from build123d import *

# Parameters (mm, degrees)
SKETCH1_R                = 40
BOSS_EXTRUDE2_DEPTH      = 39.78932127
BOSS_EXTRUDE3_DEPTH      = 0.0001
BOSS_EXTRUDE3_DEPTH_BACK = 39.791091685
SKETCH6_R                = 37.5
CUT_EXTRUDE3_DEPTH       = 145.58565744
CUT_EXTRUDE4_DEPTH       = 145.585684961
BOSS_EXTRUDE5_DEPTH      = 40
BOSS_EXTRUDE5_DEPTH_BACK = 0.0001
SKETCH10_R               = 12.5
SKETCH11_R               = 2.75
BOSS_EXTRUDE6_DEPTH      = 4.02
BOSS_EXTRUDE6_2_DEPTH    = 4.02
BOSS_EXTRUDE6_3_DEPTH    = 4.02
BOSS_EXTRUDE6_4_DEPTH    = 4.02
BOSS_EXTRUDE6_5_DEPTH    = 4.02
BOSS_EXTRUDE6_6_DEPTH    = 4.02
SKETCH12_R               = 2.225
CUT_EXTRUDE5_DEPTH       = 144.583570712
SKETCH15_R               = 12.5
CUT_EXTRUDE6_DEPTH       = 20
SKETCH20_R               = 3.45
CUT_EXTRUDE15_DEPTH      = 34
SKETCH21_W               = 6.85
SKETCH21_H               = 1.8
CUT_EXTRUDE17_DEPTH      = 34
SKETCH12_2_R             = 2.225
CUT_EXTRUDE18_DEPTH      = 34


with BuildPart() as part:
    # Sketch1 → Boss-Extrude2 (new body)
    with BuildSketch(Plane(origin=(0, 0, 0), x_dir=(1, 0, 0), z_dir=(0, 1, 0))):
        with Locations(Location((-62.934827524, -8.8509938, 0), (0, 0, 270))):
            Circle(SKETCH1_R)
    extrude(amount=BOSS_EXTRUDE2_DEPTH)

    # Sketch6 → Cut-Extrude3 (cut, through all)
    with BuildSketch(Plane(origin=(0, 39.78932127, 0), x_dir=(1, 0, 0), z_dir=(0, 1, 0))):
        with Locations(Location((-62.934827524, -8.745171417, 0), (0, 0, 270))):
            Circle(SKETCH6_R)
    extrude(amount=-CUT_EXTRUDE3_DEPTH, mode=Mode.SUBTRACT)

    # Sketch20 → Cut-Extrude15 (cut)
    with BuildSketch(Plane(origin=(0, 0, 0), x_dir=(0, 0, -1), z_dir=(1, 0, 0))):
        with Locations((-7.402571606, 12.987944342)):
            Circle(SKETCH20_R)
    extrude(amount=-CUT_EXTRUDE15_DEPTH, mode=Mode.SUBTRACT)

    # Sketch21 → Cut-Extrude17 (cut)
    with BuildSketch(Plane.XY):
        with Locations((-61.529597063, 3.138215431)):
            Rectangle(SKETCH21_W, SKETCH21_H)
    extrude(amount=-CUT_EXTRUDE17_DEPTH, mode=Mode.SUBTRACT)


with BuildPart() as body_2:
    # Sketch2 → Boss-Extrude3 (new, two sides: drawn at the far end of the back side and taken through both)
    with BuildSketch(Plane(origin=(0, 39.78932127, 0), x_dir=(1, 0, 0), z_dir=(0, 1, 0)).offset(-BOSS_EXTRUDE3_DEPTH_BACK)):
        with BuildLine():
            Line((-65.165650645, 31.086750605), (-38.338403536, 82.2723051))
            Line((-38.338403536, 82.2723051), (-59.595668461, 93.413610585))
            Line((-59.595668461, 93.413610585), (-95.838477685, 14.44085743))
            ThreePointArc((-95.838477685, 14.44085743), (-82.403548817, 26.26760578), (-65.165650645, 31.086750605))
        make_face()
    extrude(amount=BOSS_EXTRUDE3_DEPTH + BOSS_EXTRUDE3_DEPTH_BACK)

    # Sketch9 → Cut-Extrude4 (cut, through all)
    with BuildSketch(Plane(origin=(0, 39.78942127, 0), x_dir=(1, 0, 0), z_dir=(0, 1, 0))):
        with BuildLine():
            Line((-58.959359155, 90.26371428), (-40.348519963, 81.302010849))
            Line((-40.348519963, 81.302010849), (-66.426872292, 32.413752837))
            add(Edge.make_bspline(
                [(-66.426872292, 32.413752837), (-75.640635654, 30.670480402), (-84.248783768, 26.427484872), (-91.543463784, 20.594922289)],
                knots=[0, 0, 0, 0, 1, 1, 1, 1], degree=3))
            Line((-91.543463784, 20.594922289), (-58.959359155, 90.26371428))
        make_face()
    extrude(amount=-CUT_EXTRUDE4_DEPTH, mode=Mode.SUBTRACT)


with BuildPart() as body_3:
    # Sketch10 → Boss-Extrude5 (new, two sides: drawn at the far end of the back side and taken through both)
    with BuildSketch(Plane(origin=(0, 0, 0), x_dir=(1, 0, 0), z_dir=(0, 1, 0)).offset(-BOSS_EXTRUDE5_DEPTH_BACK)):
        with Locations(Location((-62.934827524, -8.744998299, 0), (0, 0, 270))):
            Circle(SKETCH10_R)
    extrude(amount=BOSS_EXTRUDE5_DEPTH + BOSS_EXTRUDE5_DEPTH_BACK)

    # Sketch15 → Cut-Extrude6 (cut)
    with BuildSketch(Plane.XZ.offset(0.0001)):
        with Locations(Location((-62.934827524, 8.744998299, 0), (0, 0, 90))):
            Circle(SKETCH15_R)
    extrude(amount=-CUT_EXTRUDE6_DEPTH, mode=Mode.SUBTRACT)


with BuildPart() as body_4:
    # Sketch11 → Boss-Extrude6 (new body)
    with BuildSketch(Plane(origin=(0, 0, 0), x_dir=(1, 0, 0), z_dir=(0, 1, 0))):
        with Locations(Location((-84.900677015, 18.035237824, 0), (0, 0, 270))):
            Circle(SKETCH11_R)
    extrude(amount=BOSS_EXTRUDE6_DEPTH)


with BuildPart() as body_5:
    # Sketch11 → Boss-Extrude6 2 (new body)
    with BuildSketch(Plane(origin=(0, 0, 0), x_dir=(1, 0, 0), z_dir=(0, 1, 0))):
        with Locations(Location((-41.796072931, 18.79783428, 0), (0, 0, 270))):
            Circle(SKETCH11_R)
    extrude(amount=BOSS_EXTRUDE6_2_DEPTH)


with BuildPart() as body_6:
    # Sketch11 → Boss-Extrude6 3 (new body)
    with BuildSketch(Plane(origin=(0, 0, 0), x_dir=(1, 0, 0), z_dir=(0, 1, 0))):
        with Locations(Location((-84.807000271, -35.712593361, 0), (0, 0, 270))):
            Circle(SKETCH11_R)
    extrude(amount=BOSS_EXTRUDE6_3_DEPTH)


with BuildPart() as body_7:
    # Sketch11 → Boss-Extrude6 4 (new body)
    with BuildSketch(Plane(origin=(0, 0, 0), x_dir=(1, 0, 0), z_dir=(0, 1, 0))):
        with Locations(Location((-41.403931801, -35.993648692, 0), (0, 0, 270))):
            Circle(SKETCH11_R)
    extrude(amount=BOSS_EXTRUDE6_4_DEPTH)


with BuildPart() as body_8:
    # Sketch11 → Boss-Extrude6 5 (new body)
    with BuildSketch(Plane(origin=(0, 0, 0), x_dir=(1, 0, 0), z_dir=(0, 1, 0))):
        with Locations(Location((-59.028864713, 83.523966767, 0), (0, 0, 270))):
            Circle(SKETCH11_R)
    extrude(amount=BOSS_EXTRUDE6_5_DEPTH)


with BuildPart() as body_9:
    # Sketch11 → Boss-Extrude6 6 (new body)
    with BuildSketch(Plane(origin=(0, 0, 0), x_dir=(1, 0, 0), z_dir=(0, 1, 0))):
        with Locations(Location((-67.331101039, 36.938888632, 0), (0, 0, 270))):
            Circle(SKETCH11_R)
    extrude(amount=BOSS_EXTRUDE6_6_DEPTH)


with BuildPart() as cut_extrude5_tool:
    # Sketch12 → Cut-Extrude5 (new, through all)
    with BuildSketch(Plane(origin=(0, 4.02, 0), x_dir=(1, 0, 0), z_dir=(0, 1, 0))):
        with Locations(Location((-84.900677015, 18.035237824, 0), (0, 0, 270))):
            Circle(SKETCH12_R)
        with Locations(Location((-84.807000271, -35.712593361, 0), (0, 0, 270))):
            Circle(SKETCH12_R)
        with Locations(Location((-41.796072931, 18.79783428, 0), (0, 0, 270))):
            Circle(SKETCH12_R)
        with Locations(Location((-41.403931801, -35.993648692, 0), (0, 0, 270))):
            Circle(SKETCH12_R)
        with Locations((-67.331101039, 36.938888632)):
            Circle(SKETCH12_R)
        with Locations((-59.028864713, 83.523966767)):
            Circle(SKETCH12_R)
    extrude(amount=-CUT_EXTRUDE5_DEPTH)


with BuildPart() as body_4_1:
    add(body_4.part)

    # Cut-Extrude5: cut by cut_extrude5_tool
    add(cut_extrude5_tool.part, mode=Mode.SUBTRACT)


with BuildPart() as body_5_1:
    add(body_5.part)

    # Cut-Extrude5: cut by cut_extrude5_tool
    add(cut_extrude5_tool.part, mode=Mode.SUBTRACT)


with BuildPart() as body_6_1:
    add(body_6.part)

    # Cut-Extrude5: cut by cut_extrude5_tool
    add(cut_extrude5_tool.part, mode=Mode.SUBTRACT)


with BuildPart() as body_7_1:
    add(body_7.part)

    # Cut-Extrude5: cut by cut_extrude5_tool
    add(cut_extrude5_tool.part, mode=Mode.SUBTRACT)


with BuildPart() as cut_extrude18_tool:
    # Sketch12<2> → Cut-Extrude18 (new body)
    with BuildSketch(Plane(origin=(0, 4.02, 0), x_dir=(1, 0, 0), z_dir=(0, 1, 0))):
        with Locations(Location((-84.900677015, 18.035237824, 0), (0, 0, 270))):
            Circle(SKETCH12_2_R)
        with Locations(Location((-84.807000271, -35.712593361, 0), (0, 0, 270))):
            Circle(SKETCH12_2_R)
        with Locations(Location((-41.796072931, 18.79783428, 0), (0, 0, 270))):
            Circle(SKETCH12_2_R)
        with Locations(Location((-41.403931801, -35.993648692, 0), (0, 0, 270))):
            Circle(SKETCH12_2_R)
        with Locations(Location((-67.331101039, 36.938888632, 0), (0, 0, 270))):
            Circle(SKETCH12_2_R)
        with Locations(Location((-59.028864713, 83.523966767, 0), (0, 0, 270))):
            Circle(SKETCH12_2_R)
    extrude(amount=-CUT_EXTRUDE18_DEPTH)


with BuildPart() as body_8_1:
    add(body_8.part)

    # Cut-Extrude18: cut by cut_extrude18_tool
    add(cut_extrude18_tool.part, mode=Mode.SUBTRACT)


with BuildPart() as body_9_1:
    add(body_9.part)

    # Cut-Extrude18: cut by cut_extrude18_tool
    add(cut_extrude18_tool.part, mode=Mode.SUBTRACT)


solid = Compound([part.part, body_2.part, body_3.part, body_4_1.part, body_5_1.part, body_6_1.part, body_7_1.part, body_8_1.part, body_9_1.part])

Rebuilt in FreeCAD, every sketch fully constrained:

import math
import FreeCAD as App
import Part
import Sketcher
from FreeCAD import Vector
Q = App.Units.Quantity


def add_polygon(sketch, points):
    """Adds a closed chain of lines whose ends are joined by coincident constraints."""
    first, n = sketch.GeometryCount, len(points)
    for a, b in zip(points, points[1:] + points[:1]):
        sketch.addGeometry(Part.LineSegment(App.Vector(*a, 0), App.Vector(*b, 0)), False)
    for i in range(n):
        sketch.addConstraint(Sketcher.Constraint("Coincident", first + i, 2, first + (i + 1) % n, 1))

doc = App.newDocument("Part")
body = doc.addObject("PartDesign::Body", "Body")

sketch1 = body.newObject("Sketcher::SketchObject", "Sketch")
sketch1.AttachmentSupport = (doc.getObject("XZ_Plane"), [""])
sketch1.MapMode = "FlatFace"
sketch1.addGeometry(Part.Circle(Vector(-63, 9, 0), Vector(0, 0, 1), 40), False)
sketch1.addConstraint([
    Sketcher.Constraint("Diameter", 0, Q("80 mm")),
    Sketcher.Constraint("DistanceX", 0, 3, -1, 1, Q("62.934828 mm")),
    Sketcher.Constraint("DistanceY", -1, 1, 0, 3, Q("8.850994 mm")),
])
pad1 = body.newObject("PartDesign::Pad", "Pad")
pad1.Profile = sketch1
pad1.Length = 39.789321
pad1.Reversed = True

sketch2 = body.newObject("Sketcher::SketchObject", "Sketch001")
sketch2.AttachmentSupport = (doc.getObject("XZ_Plane"), [""])
sketch2.MapMode = "FlatFace"
sketch2.AttachmentOffset = App.Placement(Vector(0, 0, -39.789321), App.Rotation())
sketch2.addGeometry(Part.Circle(Vector(-63, 9, 0), Vector(0, 0, 1), 38), False)
sketch2.addConstraint([
    Sketcher.Constraint("Diameter", 0, Q("75 mm")),
    Sketcher.Constraint("DistanceY", -1, 1, 0, 3, Q("8.745171 mm")),
    Sketcher.Constraint("DistanceX", 0, 3, -1, 1, Q("62.934828 mm")),
])
pocket1 = body.newObject("PartDesign::Pocket", "Pocket")
pocket1.Profile = sketch2
pocket1.Type = "ThroughAll"
pocket1.Reversed = True

sketch3 = body.newObject("Sketcher::SketchObject", "Sketch002")
sketch3.AttachmentSupport = (doc.getObject("YZ_Plane"), [""])
sketch3.MapMode = "FlatFace"
sketch3.addGeometry(Part.Circle(Vector(13, 7.4, 0), Vector(0, 0, 1), 3.5), False)
sketch3.addConstraint([
    Sketcher.Constraint("Diameter", 0, Q("6.9 mm")),
    Sketcher.Constraint("DistanceY", -1, 1, 0, 3, Q("7.402572 mm")),
    Sketcher.Constraint("DistanceX", -1, 1, 0, 3, Q("12.987944 mm")),
])
pocket2 = body.newObject("PartDesign::Pocket", "Pocket001")
pocket2.Profile = sketch3
pocket2.Length = 34

sketch4 = body.newObject("Sketcher::SketchObject", "Sketch003")
sketch4.AttachmentSupport = (doc.getObject("XY_Plane"), [""])
sketch4.MapMode = "FlatFace"
add_polygon(sketch4, [(-65, 4), (-65, 2.2), (-58.1, 2.2), (-58.1, 4)])
sketch4.addConstraint([
    Sketcher.Constraint("Vertical", 0),
    Sketcher.Constraint("Horizontal", 1),
    Sketcher.Constraint("Vertical", 2),
    Sketcher.Constraint("Horizontal", 3),
    Sketcher.Constraint("DistanceY", 0, 2, 0, 1, Q("1.8 mm")),
    Sketcher.Constraint("DistanceX", 1, 1, 1, 2, Q("6.85 mm")),
    Sketcher.Constraint("DistanceX", 0, 2, -1, 1, Q("64.954597 mm")),
    Sketcher.Constraint("DistanceY", -1, 1, 0, 2, Q("2.238215 mm")),
])
pocket3 = body.newObject("PartDesign::Pocket", "Pocket002")
pocket3.Profile = sketch4
pocket3.Length = 34
body2 = doc.addObject("PartDesign::Body", "Body001")

sketch5 = body2.newObject("Sketcher::SketchObject", "Sketch004")
sketch5.AttachmentSupport = (doc.getObject("XZ_Plane001"), [""])
sketch5.MapMode = "FlatFace"
sketch5.AttachmentOffset = App.Placement(Vector(0, 0, -39.789321), App.Rotation())
sketch5.addGeometry([
    Part.LineSegment(Vector(-65, -31, 0), Vector(-38, -82, 0)),
    Part.LineSegment(Vector(-38, -82, 0), Vector(-60, -93, 0)),
    Part.LineSegment(Vector(-60, -93, 0), Vector(-96, -14, 0)),
    Part.ArcOfCircle(Part.Circle(Vector(-63, 9, 0), Vector(0, 0, 1), 40), math.radians(-144), math.radians(-93)),
], False)
sketch5.addConstraint([
    Sketcher.Constraint("Coincident", 0, 2, 1, 1),
    Sketcher.Constraint("Coincident", 1, 2, 2, 1),
    Sketcher.Constraint("Coincident", 2, 2, 3, 1),
    Sketcher.Constraint("Coincident", 3, 2, 0, 1),
    Sketcher.Constraint("Perpendicular", 0, 1),
    Sketcher.Constraint("Distance", 1, Q("24 mm")),
    Sketcher.Constraint("Radius", 3, Q("40.181663 mm")),
    Sketcher.Constraint("Distance", 2, Q("86.8921 mm")),
    Sketcher.Constraint("Distance", 0, Q("57.78981 mm")),
    Sketcher.Constraint("DistanceX", 1, 2, -1, 1, Q("59.595668 mm")),
    Sketcher.Constraint("DistanceY", 1, 2, -1, 1, Q("93.413611 mm")),
    Sketcher.Constraint("DistanceX", 3, 2, -1, 1, Q("65.165651 mm")),
    Sketcher.Constraint("DistanceX", 3, 3, 0, 2, Q("24.89931 mm")),
])
pad2 = body2.newObject("PartDesign::Pad", "Pad001")
pad2.Profile = sketch5
pad2.Type = "TwoLengths"
pad2.Length = 0.0001
pad2.Length2 = 39.791092
pad2.Reversed = True

sketch6 = body2.newObject("Sketcher::SketchObject", "Sketch005")
sketch6.AttachmentSupport = (doc.getObject("XZ_Plane001"), [""])
sketch6.MapMode = "FlatFace"
sketch6.AttachmentOffset = App.Placement(Vector(0, 0, -39.789421), App.Rotation())
sketch6.addGeometry([
    Part.LineSegment(Vector(-40.34852, -81.302011, 0), Vector(-58.959359, -90.263714, 0)),
    Part.LineSegment(Vector(-58.959359, -90.263714, 0), Vector(-91.543464, -20.594922, 0)),
    Part.BSplineCurve([Vector(-66.426872, -32.413753, 0), Vector(-75.640636, -30.67048, 0), Vector(-84.248784, -26.427485, 0), Vector(-91.543464, -20.594922, 0)], [4, 4], [0, 1], False, 3, [1, 1, 1, 1], False),
    Part.LineSegment(Vector(-66.426872, -32.413753, 0), Vector(-40.34852, -81.302011, 0)),
], False)
sketch6.addConstraint([
    Sketcher.Constraint("Block", 2),
    Sketcher.Constraint("Coincident", 0, 2, 1, 1),
    Sketcher.Constraint("Coincident", 1, 2, 2, 2),
    Sketcher.Constraint("Coincident", 2, 1, 3, 1),
    Sketcher.Constraint("Coincident", 3, 2, 0, 1),
    Sketcher.Constraint("DistanceX", 0, 2, -1, 1, Q("58.959359 mm")),
    Sketcher.Constraint("DistanceX", 3, 2, -1, 1, Q("40.34852 mm")),
    Sketcher.Constraint("DistanceY", 3, 2, -1, 1, Q("81.302011 mm")),
    Sketcher.Constraint("DistanceY", 0, 2, 1, 2, Q("69.668792 mm")),
])
pocket4 = body2.newObject("PartDesign::Pocket", "Pocket003")
pocket4.Profile = sketch6
pocket4.Type = "ThroughAll"
pocket4.Reversed = True
body3 = doc.addObject("PartDesign::Body", "Body002")

sketch7 = body3.newObject("Sketcher::SketchObject", "Sketch006")
sketch7.AttachmentSupport = (doc.getObject("XZ_Plane002"), [""])
sketch7.MapMode = "FlatFace"
sketch7.addGeometry(Part.Circle(Vector(-63, 9, 0), Vector(0, 0, 1), 12), False)
sketch7.addConstraint([
    Sketcher.Constraint("Diameter", 0, Q("25 mm")),
    Sketcher.Constraint("DistanceY", -1, 1, 0, 3, Q("8.744998 mm")),
    Sketcher.Constraint("DistanceX", 0, 3, -1, 1, Q("62.934828 mm")),
])
pad3 = body3.newObject("PartDesign::Pad", "Pad002")
pad3.Profile = sketch7
pad3.Type = "TwoLengths"
pad3.Length = 40
pad3.Length2 = 0.0001
pad3.Reversed = True

sketch8 = body3.newObject("Sketcher::SketchObject", "Sketch007")
sketch8.AttachmentSupport = (doc.getObject("XZ_Plane002"), [""])
sketch8.MapMode = "FlatFace"
sketch8.AttachmentOffset = App.Placement(Vector(0, 0, 0.0001), App.Rotation())
sketch8.addGeometry(Part.Circle(Vector(-63, 9, 0), Vector(0, 0, 1), 12), False)
sketch8.addConstraint([
    Sketcher.Constraint("Diameter", 0, Q("25 mm")),
    Sketcher.Constraint("DistanceY", -1, 1, 0, 3, Q("8.744998 mm")),
    Sketcher.Constraint("DistanceX", 0, 3, -1, 1, Q("62.934828 mm")),
])
pocket5 = body3.newObject("PartDesign::Pocket", "Pocket004")
pocket5.Profile = sketch8
pocket5.Length = 20
body4 = doc.addObject("PartDesign::Body", "Body003")

sketch9 = body4.newObject("Sketcher::SketchObject", "Sketch008")
sketch9.AttachmentSupport = (doc.getObject("XZ_Plane003"), [""])
sketch9.MapMode = "FlatFace"
sketch9.addGeometry(Part.Circle(Vector(-84.9, -18, 0), Vector(0, 0, 1), 2.8), False)
sketch9.addConstraint([
    Sketcher.Constraint("Diameter", 0, Q("5.5 mm")),
    Sketcher.Constraint("DistanceX", 0, 3, -1, 1, Q("84.900677 mm")),
    Sketcher.Constraint("DistanceY", 0, 3, -1, 1, Q("18.035238 mm")),
])
pad4 = body4.newObject("PartDesign::Pad", "Pad003")
pad4.Profile = sketch9
pad4.Length = 4.02
pad4.Reversed = True
body5 = doc.addObject("PartDesign::Body", "Body004")

sketch10 = body5.newObject("Sketcher::SketchObject", "Sketch009")
sketch10.AttachmentSupport = (doc.getObject("XZ_Plane004"), [""])
sketch10.MapMode = "FlatFace"
sketch10.addGeometry(Part.Circle(Vector(-41.8, -18.8, 0), Vector(0, 0, 1), 2.8), False)
sketch10.addConstraint([
    Sketcher.Constraint("Diameter", 0, Q("5.5 mm")),
    Sketcher.Constraint("DistanceX", 0, 3, -1, 1, Q("41.796073 mm")),
    Sketcher.Constraint("DistanceY", 0, 3, -1, 1, Q("18.797834 mm")),
])
pad5 = body5.newObject("PartDesign::Pad", "Pad004")
pad5.Profile = sketch10
pad5.Length = 4.02
pad5.Reversed = True
body6 = doc.addObject("PartDesign::Body", "Body005")

sketch11 = body6.newObject("Sketcher::SketchObject", "Sketch010")
sketch11.AttachmentSupport = (doc.getObject("XZ_Plane005"), [""])
sketch11.MapMode = "FlatFace"
sketch11.addGeometry(Part.Circle(Vector(-84.8, 35.7, 0), Vector(0, 0, 1), 2.8), False)
sketch11.addConstraint([
    Sketcher.Constraint("Diameter", 0, Q("5.5 mm")),
    Sketcher.Constraint("DistanceX", 0, 3, -1, 1, Q("84.807 mm")),
    Sketcher.Constraint("DistanceY", -1, 1, 0, 3, Q("35.712593 mm")),
])
pad6 = body6.newObject("PartDesign::Pad", "Pad005")
pad6.Profile = sketch11
pad6.Length = 4.02
pad6.Reversed = True
body7 = doc.addObject("PartDesign::Body", "Body006")

sketch12 = body7.newObject("Sketcher::SketchObject", "Sketch011")
sketch12.AttachmentSupport = (doc.getObject("XZ_Plane006"), [""])
sketch12.MapMode = "FlatFace"
sketch12.addGeometry(Part.Circle(Vector(-41.4, 36, 0), Vector(0, 0, 1), 2.8), False)
sketch12.addConstraint([
    Sketcher.Constraint("Diameter", 0, Q("5.5 mm")),
    Sketcher.Constraint("DistanceX", 0, 3, -1, 1, Q("41.403932 mm")),
    Sketcher.Constraint("DistanceY", -1, 1, 0, 3, Q("35.993649 mm")),
])
pad7 = body7.newObject("PartDesign::Pad", "Pad006")
pad7.Profile = sketch12
pad7.Length = 4.02
pad7.Reversed = True
body8 = doc.addObject("PartDesign::Body", "Body007")

sketch13 = body8.newObject("Sketcher::SketchObject", "Sketch012")
sketch13.AttachmentSupport = (doc.getObject("XZ_Plane007"), [""])
sketch13.MapMode = "FlatFace"
sketch13.addGeometry(Part.Circle(Vector(-59, -83.5, 0), Vector(0, 0, 1), 2.8), False)
sketch13.addConstraint([
    Sketcher.Constraint("Diameter", 0, Q("5.5 mm")),
    Sketcher.Constraint("DistanceX", 0, 3, -1, 1, Q("59.028865 mm")),
    Sketcher.Constraint("DistanceY", 0, 3, -1, 1, Q("83.523967 mm")),
])
pad8 = body8.newObject("PartDesign::Pad", "Pad007")
pad8.Profile = sketch13
pad8.Length = 4.02
pad8.Reversed = True
body9 = doc.addObject("PartDesign::Body", "Body008")

sketch14 = body9.newObject("Sketcher::SketchObject", "Sketch013")
sketch14.AttachmentSupport = (doc.getObject("XZ_Plane008"), [""])
sketch14.MapMode = "FlatFace"
sketch14.addGeometry(Part.Circle(Vector(-67.3, -36.9, 0), Vector(0, 0, 1), 2.8), False)
sketch14.addConstraint([
    Sketcher.Constraint("Diameter", 0, Q("5.5 mm")),
    Sketcher.Constraint("DistanceX", 0, 3, -1, 1, Q("67.331101 mm")),
    Sketcher.Constraint("DistanceY", 0, 3, -1, 1, Q("36.938889 mm")),
])
pad9 = body9.newObject("PartDesign::Pad", "Pad008")
pad9.Profile = sketch14
pad9.Length = 4.02
pad9.Reversed = True
body10 = doc.addObject("PartDesign::Body", "Body009")
body10.AllowCompound = True

sketch15 = body10.newObject("Sketcher::SketchObject", "Sketch014")
sketch15.AttachmentSupport = (doc.getObject("XZ_Plane009"), [""])
sketch15.MapMode = "FlatFace"
sketch15.AttachmentOffset = App.Placement(Vector(0, 0, -4.02), App.Rotation())
sketch15.addGeometry([
    Part.Circle(Vector(-84.9, -18, 0), Vector(0, 0, 1), 2.2),
    Part.Circle(Vector(-84.8, 35.7, 0), Vector(0, 0, 1), 2.2),
    Part.Circle(Vector(-41.8, -18.8, 0), Vector(0, 0, 1), 2.2),
    Part.Circle(Vector(-41.4, 36, 0), Vector(0, 0, 1), 2.2),
    Part.Circle(Vector(-67.3, -36.9, 0), Vector(0, 0, 1), 2.2),
    Part.Circle(Vector(-59, -83.5, 0), Vector(0, 0, 1), 2.2),
], False)
sketch15.addConstraint([
    Sketcher.Constraint("Equal", 0, 1),
    Sketcher.Constraint("Equal", 1, 2),
    Sketcher.Constraint("Equal", 2, 3),
    Sketcher.Constraint("Equal", 3, 4),
    Sketcher.Constraint("Equal", 4, 5),
    Sketcher.Constraint("Diameter", 0, Q("4.45 mm")),
    Sketcher.Constraint("DistanceX", 1, 3, -1, 1, Q("84.807 mm")),
    Sketcher.Constraint("DistanceX", 4, 3, -1, 1, Q("67.331101 mm")),
    Sketcher.Constraint("DistanceX", 3, 3, -1, 1, Q("41.403932 mm")),
    Sketcher.Constraint("DistanceY", -1, 1, 3, 3, Q("35.993649 mm")),
    Sketcher.Constraint("DistanceY", 4, 3, -1, 1, Q("36.938889 mm")),
    Sketcher.Constraint("DistanceY", 0, 3, 1, 3, Q("53.747831 mm")),
    Sketcher.Constraint("DistanceX", 2, 3, 3, 3, Q("0.392141 mm")),
    Sketcher.Constraint("DistanceY", 4, 3, 0, 3, Q("18.903651 mm")),
    Sketcher.Constraint("DistanceY", 5, 3, 4, 3, Q("46.585078 mm")),
    Sketcher.Constraint("DistanceX", 5, 3, 2, 3, Q("17.232792 mm")),
    Sketcher.Constraint("DistanceX", 0, 3, -1, 1, Q("84.900677 mm")),
    Sketcher.Constraint("DistanceY", 2, 3, -1, 1, Q("18.797834 mm")),
])
pad10 = body10.newObject("PartDesign::Pad", "Pad009")
pad10.Profile = sketch15
pad10.Length = 144.583571
doc.recompute()

body11 = doc.addObject("PartDesign::Body", "Body010")
body11.BaseFeature = body10
boolean = body4.newObject("PartDesign::Boolean", "Boolean")
boolean.Type = "Cut"
boolean.addObjects([body11])
doc.recompute()

body12 = doc.addObject("PartDesign::Body", "Body011")
body12.BaseFeature = body10
boolean2 = body5.newObject("PartDesign::Boolean", "Boolean001")
boolean2.Type = "Cut"
boolean2.addObjects([body12])
doc.recompute()

body13 = doc.addObject("PartDesign::Body", "Body012")
body13.BaseFeature = body10
boolean3 = body6.newObject("PartDesign::Boolean", "Boolean002")
boolean3.Type = "Cut"
boolean3.addObjects([body13])
doc.recompute()

boolean4 = body7.newObject("PartDesign::Boolean", "Boolean003")
boolean4.Type = "Cut"
boolean4.addObjects([body10])
body14 = doc.addObject("PartDesign::Body", "Body013")
body14.AllowCompound = True

sketch16 = body14.newObject("Sketcher::SketchObject", "Sketch015")
sketch16.AttachmentSupport = (doc.getObject("XZ_Plane013"), [""])
sketch16.MapMode = "FlatFace"
sketch16.AttachmentOffset = App.Placement(Vector(0, 0, -4.02), App.Rotation())
sketch16.addGeometry([
    Part.Circle(Vector(-84.9, -18, 0), Vector(0, 0, 1), 2.2),
    Part.Circle(Vector(-84.8, 35.7, 0), Vector(0, 0, 1), 2.2),
    Part.Circle(Vector(-41.8, -18.8, 0), Vector(0, 0, 1), 2.2),
    Part.Circle(Vector(-41.4, 36, 0), Vector(0, 0, 1), 2.2),
    Part.Circle(Vector(-67.3, -36.9, 0), Vector(0, 0, 1), 2.2),
    Part.Circle(Vector(-59, -83.5, 0), Vector(0, 0, 1), 2.2),
], False)
sketch16.addConstraint([
    Sketcher.Constraint("Equal", 0, 1),
    Sketcher.Constraint("Equal", 1, 2),
    Sketcher.Constraint("Equal", 2, 3),
    Sketcher.Constraint("Equal", 3, 4),
    Sketcher.Constraint("Equal", 4, 5),
    Sketcher.Constraint("Diameter", 0, Q("4.45 mm")),
    Sketcher.Constraint("DistanceX", 1, 3, -1, 1, Q("84.807 mm")),
    Sketcher.Constraint("DistanceX", 4, 3, -1, 1, Q("67.331101 mm")),
    Sketcher.Constraint("DistanceX", 3, 3, -1, 1, Q("41.403932 mm")),
    Sketcher.Constraint("DistanceY", -1, 1, 3, 3, Q("35.993649 mm")),
    Sketcher.Constraint("DistanceY", 4, 3, -1, 1, Q("36.938889 mm")),
    Sketcher.Constraint("DistanceY", 0, 3, 1, 3, Q("53.747831 mm")),
    Sketcher.Constraint("DistanceX", 2, 3, 3, 3, Q("0.392141 mm")),
    Sketcher.Constraint("DistanceY", 4, 3, 0, 3, Q("18.903651 mm")),
    Sketcher.Constraint("DistanceY", 5, 3, 4, 3, Q("46.585078 mm")),
    Sketcher.Constraint("DistanceX", 5, 3, 2, 3, Q("17.232792 mm")),
    Sketcher.Constraint("DistanceX", 0, 3, -1, 1, Q("84.900677 mm")),
    Sketcher.Constraint("DistanceY", 2, 3, -1, 1, Q("18.797834 mm")),
])
pad11 = body14.newObject("PartDesign::Pad", "Pad010")
pad11.Profile = sketch16
pad11.Length = 34
doc.recompute()

body15 = doc.addObject("PartDesign::Body", "Body014")
body15.BaseFeature = body14
boolean5 = body8.newObject("PartDesign::Boolean", "Boolean004")
boolean5.Type = "Cut"
boolean5.addObjects([body15])
doc.recompute()

boolean6 = body9.newObject("PartDesign::Boolean", "Boolean005")
boolean6.Type = "Cut"
boolean6.addObjects([body14])

doc.recompute()
